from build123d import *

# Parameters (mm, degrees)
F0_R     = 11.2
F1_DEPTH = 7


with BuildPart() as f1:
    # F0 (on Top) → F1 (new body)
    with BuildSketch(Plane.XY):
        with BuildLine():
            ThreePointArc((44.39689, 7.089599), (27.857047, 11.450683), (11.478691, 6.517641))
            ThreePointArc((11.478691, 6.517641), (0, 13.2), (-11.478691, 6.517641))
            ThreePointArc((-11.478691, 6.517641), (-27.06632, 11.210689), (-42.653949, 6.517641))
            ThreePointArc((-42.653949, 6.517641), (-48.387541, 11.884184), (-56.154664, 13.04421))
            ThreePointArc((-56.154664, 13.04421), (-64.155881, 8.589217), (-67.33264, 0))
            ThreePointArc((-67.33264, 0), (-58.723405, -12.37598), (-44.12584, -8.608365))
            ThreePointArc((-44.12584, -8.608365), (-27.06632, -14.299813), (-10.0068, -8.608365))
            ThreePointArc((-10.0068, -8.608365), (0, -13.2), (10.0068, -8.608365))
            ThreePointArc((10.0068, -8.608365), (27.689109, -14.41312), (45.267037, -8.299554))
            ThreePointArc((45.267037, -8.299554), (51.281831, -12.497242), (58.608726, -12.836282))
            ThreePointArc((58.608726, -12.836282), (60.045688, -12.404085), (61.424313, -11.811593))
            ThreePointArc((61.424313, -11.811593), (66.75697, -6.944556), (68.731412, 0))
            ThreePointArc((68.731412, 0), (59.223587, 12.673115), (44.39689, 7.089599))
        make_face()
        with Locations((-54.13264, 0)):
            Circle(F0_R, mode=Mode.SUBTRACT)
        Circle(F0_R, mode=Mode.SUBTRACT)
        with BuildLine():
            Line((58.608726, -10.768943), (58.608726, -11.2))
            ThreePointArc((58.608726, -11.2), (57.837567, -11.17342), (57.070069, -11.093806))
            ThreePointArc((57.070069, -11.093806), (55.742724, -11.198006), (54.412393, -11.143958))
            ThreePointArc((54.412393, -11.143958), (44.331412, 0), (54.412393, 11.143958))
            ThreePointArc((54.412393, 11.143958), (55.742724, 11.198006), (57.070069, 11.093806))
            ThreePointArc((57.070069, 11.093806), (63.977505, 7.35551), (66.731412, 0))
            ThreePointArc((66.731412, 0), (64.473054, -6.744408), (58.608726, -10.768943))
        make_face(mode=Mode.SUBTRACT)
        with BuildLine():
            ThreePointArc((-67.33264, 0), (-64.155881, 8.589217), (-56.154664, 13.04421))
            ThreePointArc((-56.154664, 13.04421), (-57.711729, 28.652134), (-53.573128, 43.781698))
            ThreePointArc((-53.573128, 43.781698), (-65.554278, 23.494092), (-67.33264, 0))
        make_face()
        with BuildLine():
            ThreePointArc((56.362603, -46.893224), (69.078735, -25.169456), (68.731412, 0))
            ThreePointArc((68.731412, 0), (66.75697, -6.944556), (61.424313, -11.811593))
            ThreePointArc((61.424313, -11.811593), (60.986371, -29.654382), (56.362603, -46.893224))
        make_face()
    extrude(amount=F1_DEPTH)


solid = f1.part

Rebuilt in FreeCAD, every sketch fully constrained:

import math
import FreeCAD as App
import Part
import Sketcher

V = App.Vector

doc = App.newDocument("Part")
body = doc.addObject("PartDesign::Body", "Body")

sketch1 = doc.addObject("Sketcher::SketchObject", "Sketch")
body.addObject(sketch1)
sketch1.AttachmentSupport = (doc.XY_Plane, [""])
sketch1.MapMode = "FlatFace"
sketch1.addGeometry(Part.ArcOfCircle(Part.Circle(V(28.403863, -20.020501, 0), V(0, 0, 1), 31.475934), math.radians(59.462424), math.radians(122.528419)), False)
sketch1.addGeometry(Part.ArcOfCircle(Part.Circle(V(0, 0.000001, 0), V(0, 0, 1), 13.199999), math.radians(29.58806), math.radians(150.41194)), False)
sketch1.addGeometry(Part.ArcOfCircle(Part.Circle(V(-27.06632, -17.022442, 0), V(0, 0, 1), 28.233131), math.radians(56.488513), math.radians(123.511487)), False)
sketch1.addGeometry(Part.ArcOfCircle(Part.Circle(V(-54.13264, 0, 0), V(0, 0, 1), 13.2), math.radians(29.588063), math.radians(98.811467)), False)
sketch1.addGeometry(Part.ArcOfCircle(Part.Circle(V(-14.817984, 25.049635, 0), V(0, 0, 1), 43.04476), math.radians(154.203482), math.radians(196.1949)), False)
sketch1.addGeometry(Part.ArcOfCircle(Part.Circle(V(-16.035119, 7.931437, 0), V(0, 0, 1), 51.907065), math.radians(136.317428), math.radians(188.789267)), False)
sketch1.addGeometry(Part.ArcOfCircle(Part.Circle(V(-54.13264, 0, 0), V(0, 0, 1), 13.2), math.radians(179.999998), math.radians(319.296187)), False)
sketch1.addGeometry(Part.ArcOfCircle(Part.Circle(V(-27.06632, 14.112974, 0), V(0, 0, 1), 28.412787), math.radians(-126.899768), math.radians(-53.100232)), False)
sketch1.addGeometry(Part.ArcOfCircle(Part.Circle(V(0, -0.000001, 0), V(0, 0, 1), 13.199999), math.radians(-139.296188), math.radians(-40.703812)), False)
sketch1.addGeometry(Part.ArcOfCircle(Part.Circle(V(27.43461, 14.645727, 0), V(0, 0, 1), 29.059962), math.radians(-126.849773), math.radians(-52.146654)), False)
sketch1.addGeometry(Part.ArcOfCircle(Part.Circle(V(55.531412, -0.000001, 0), V(0, 0, 1), 13.199999), math.radians(-141.04174), math.radians(-76.51859)), False)
sketch1.addGeometry(Part.ArcOfCircle(Part.Circle(V(55.531431, -0.000045, 0), V(0, 0, 1), 13.199952), math.radians(-76.518625), math.radians(-63.485)), False)
sketch1.addGeometry(Part.ArcOfCircle(Part.Circle(V(-13.56534, -18.89778, 0), V(0, 0, 1), 75.323716), math.radians(-21.818548), math.radians(5.398166)), False)
sketch1.addGeometry(Part.ArcOfCircle(Part.Circle(V(23.730313, -13.208112, 0), V(0, 0, 1), 46.899394), math.radians(-45.909523), math.radians(16.357303)), False)
sketch1.addGeometry(Part.ArcOfCircle(Part.Circle(V(55.531412, 0, 0), V(0, 0, 1), 13.2), math.radians(-0.000001), math.radians(147.514182)), False)
sketch1.addGeometry(Part.ArcOfCircle(Part.Circle(V(55.531413, 0, 0), V(0, 0, 1), 11.199999), math.radians(-74.05228), math.radians(0.000002)), False)
sketch1.addGeometry(Part.LineSegment(V(58.608726, -10.768943, 0), V(58.608726, -11.2, 0)), False)
sketch1.addGeometry(Part.ArcOfCircle(Part.Circle(V(58.608724, -0.000042, 0), V(0, 0, 1), 11.199958), math.radians(-97.896292), math.radians(-89.99999)), False)
sketch1.addGeometry(Part.ArcOfCircle(Part.Circle(V(55.53141, 0.000057, 0), V(0, 0, 1), 11.200057), math.radians(-95.734086), math.radians(-82.103757)), False)
sketch1.addGeometry(Part.ArcOfCircle(Part.Circle(V(55.531412, 0, 0), V(0, 0, 1), 11.2), math.radians(95.734128), math.radians(264.265872)), False)
sketch1.addGeometry(Part.ArcOfCircle(Part.Circle(V(55.53141, -0.000057, 0), V(0, 0, 1), 11.200057), math.radians(82.103757), math.radians(95.734086)), False)
sketch1.addGeometry(Part.ArcOfCircle(Part.Circle(V(55.531414, 0.000002, 0), V(0, 0, 1), 11.199998), math.radians(-0.000009), math.radians(82.103738)), False)
sketch1.addGeometry(Part.Circle(V(-54.13264, 0, 0), V(0, 0, 1), 11.2), False)
sketch1.addGeometry(Part.Circle(V(0, 0, 0), V(0, 0, 1), 11.2), False)
sketch1.addConstraint(Sketcher.Constraint("Coincident", 0, 2, 1, 1))
sketch1.addConstraint(Sketcher.Constraint("Coincident", 1, 2, 2, 1))
sketch1.addConstraint(Sketcher.Constraint("Coincident", 2, 2, 3, 1))
sketch1.addConstraint(Sketcher.Constraint("Coincident", 3, 2, 4, 2))
sketch1.addConstraint(Sketcher.Constraint("Coincident", 4, 1, 5, 1))
sketch1.addConstraint(Sketcher.Constraint("Coincident", 5, 2, 6, 1))
sketch1.addConstraint(Sketcher.Constraint("Coincident", 6, 2, 7, 1))
sketch1.addConstraint(Sketcher.Constraint("Coincident", 7, 2, 8, 1))
sketch1.addConstraint(Sketcher.Constraint("Coincident", 8, 2, 9, 1))
sketch1.addConstraint(Sketcher.Constraint("Coincident", 9, 2, 10, 1))
sketch1.addConstraint(Sketcher.Constraint("Coincident", 10, 2, 11, 1))
sketch1.addConstraint(Sketcher.Constraint("Coincident", 11, 2, 12, 2))
sketch1.addConstraint(Sketcher.Constraint("Coincident", 12, 1, 13, 1))
sketch1.addConstraint(Sketcher.Constraint("Coincident", 13, 2, 14, 1))
sketch1.addConstraint(Sketcher.Constraint("Coincident", 14, 2, 0, 1))
sketch1.addConstraint(Sketcher.Constraint("Coincident", 15, 1, 16, 1))
sketch1.addConstraint(Sketcher.Constraint("Coincident", 16, 2, 17, 2))
sketch1.addConstraint(Sketcher.Constraint("Coincident", 17, 1, 18, 2))
sketch1.addConstraint(Sketcher.Constraint("Coincident", 18, 1, 19, 2))
sketch1.addConstraint(Sketcher.Constraint("Coincident", 19, 1, 20, 2))
sketch1.addConstraint(Sketcher.Constraint("Coincident", 20, 1, 21, 2))
sketch1.addConstraint(Sketcher.Constraint("Coincident", 21, 1, 15, 2))
sketch1.addConstraint(Sketcher.Constraint("Vertical", 16))
sketch1.addConstraint(Sketcher.Constraint("Coincident", 1, 3, -1, 1))
sketch1.addConstraint(Sketcher.Constraint("Coincident", 8, 3, -1, 1))
sketch1.addConstraint(Sketcher.Constraint("Coincident", 23, 3, -1, 1))
sketch1.addConstraint(Sketcher.Constraint("Coincident", 6, 3, 3, 3))
sketch1.addConstraint(Sketcher.Constraint("Coincident", 14, 3, 10, 3))
sketch1.addConstraint(Sketcher.Constraint("Coincident", 15, 3, 10, 3))
sketch1.addConstraint(Sketcher.Constraint("Coincident", 19, 3, 10, 3))
sketch1.addConstraint(Sketcher.Constraint("Coincident", 21, 3, 10, 3))
sketch1.addConstraint(Sketcher.Constraint("Coincident", 22, 3, 3, 3))
sketch1.addConstraint(Sketcher.Constraint("PointOnObject", 3, 3, -1))
sketch1.addConstraint(Sketcher.Constraint("PointOnObject", 10, 3, -1))
sketch1.addConstraint(Sketcher.Constraint("PointOnObject", 5, 2, -1))
sketch1.addConstraint(Sketcher.Constraint("PointOnObject", 13, 2, -1))
sketch1.addConstraint(Sketcher.Constraint("PointOnObject", 21, 1, -1))
sketch1.addConstraint(Sketcher.Constraint("Diameter", 22, 22.4))
sketch1.addConstraint(Sketcher.Constraint("Diameter", 23, 22.4))
sketch1.addConstraint(Sketcher.Constraint("Radius", 1, 13.199999))
sketch1.addConstraint(Sketcher.Constraint("Radius", 3, 13.2))
sketch1.addConstraint(Sketcher.Constraint("Radius", 6, 13.2))
sketch1.addConstraint(Sketcher.Constraint("Radius", 8, 13.199999))
sketch1.addConstraint(Sketcher.Constraint("Radius", 10, 13.199999))
sketch1.addConstraint(Sketcher.Constraint("Radius", 14, 13.2))
sketch1.addConstraint(Sketcher.Constraint("Radius", 15, 11.199999))
sketch1.addConstraint(Sketcher.Constraint("Radius", 19, 11.2))
sketch1.addConstraint(Sketcher.Constraint("DistanceY", 16, 2, -1, 1, 11.2))
sketch1.addConstraint(Sketcher.Constraint("Radius", 2, 28.233131))
sketch1.addConstraint(Sketcher.Constraint("Radius", 4, 43.04476))
sketch1.addConstraint(Sketcher.Constraint("Radius", 9, 29.059962))
sketch1.addConstraint(Sketcher.Constraint("Radius", 11, 13.199952))
sketch1.addConstraint(Sketcher.Constraint("Radius", 0, 31.475934))
sketch1.addConstraint(Sketcher.Constraint("Radius", 5, 51.907065))
sketch1.addConstraint(Sketcher.Constraint("Radius", 7, 28.412787))
sketch1.addConstraint(Sketcher.Constraint("Radius", 12, 75.323716))
sketch1.addConstraint(Sketcher.Constraint("Radius", 13, 46.899394))
sketch1.addConstraint(Sketcher.Constraint("Radius", 17, 11.199958))
sketch1.addConstraint(Sketcher.Constraint("Radius", 18, 11.200057))
sketch1.addConstraint(Sketcher.Constraint("Radius", 20, 11.200057))
sketch1.addConstraint(Sketcher.Constraint("DistanceY", 0, 3, -1, 1, 20.020501))
sketch1.addConstraint(Sketcher.Constraint("DistanceY", -1, 1, 4, 1, 43.781698))
sketch1.addConstraint(Sketcher.Constraint("DistanceX", 7, 2, -1, 1, 10.0068))
sketch1.addConstraint(Sketcher.Constraint("DistanceX", -1, 1, 8, 2, 10.0068))
sketch1.addConstraint(Sketcher.Constraint("DistanceY", -1, 1, 14, 2, 7.089599))
sketch1.addConstraint(Sketcher.Constraint("DistanceY", 5, 3, 4, 3, 17.118199))
sketch1.addConstraint(Sketcher.Constraint("DistanceX", 2, 3, 5, 3, 11.031201))
sketch1.addConstraint(Sketcher.Constraint("DistanceX", 7, 3, 5, 3, 11.031201))
sketch1.addConstraint(Sketcher.Constraint("DistanceX", 9, 3, 10, 3, 28.096802))
sketch1.addConstraint(Sketcher.Constraint("DistanceX", 13, 3, 10, 3, 31.801099))
sketch1.addConstraint(Sketcher.Constraint("DistanceY", 11, 3, 18, 3, 0.000102))
sketch1.addConstraint(Sketcher.Constraint("DistanceX", 6, 3, 6, 2, 10.0068))
sketch1.addConstraint(Sketcher.Constraint("DistanceX", 15, 3, 11, 2, 5.8929))
sketch1.addConstraint(Sketcher.Constraint("DistanceY", 15, 1, 17, 3, 10.768901))
sketch1.addConstraint(Sketcher.Constraint("DistanceY", 15, 1, 11, 3, 10.768898))
sketch1.addConstraint(Sketcher.Constraint("DistanceY", 18, 3, 19, 1, 11.143901))
sketch1.addConstraint(Sketcher.Constraint("DistanceX", 2, 3, -1, 1, 27.06632))
sketch1.addConstraint(Sketcher.Constraint("DistanceY", 2, 3, -1, 1, 17.022442))
sketch1.addConstraint(Sketcher.Constraint("DistanceX", -1, 1, 9, 3, 27.43461))
sketch1.addConstraint(Sketcher.Constraint("DistanceX", 12, 3, -1, 1, 13.56534))
sketch1.addConstraint(Sketcher.Constraint("DistanceX", -1, 1, 17, 1, 57.070069))
sketch1.addConstraint(Sketcher.Constraint("DistanceY", 18, 1, -1, 1, 11.143958))
sketch1.addConstraint(Sketcher.Constraint("DistanceX", -1, 1, 20, 1, 57.070069))
sketch1.addConstraint(Sketcher.Constraint("DistanceY", 10, 2, 17, 3, 12.83624))
pad1 = doc.addObject("PartDesign::Pad", "Pad")
body.addObject(pad1)
pad1.Profile = sketch1
pad1.Length = 7

doc.recompute()
